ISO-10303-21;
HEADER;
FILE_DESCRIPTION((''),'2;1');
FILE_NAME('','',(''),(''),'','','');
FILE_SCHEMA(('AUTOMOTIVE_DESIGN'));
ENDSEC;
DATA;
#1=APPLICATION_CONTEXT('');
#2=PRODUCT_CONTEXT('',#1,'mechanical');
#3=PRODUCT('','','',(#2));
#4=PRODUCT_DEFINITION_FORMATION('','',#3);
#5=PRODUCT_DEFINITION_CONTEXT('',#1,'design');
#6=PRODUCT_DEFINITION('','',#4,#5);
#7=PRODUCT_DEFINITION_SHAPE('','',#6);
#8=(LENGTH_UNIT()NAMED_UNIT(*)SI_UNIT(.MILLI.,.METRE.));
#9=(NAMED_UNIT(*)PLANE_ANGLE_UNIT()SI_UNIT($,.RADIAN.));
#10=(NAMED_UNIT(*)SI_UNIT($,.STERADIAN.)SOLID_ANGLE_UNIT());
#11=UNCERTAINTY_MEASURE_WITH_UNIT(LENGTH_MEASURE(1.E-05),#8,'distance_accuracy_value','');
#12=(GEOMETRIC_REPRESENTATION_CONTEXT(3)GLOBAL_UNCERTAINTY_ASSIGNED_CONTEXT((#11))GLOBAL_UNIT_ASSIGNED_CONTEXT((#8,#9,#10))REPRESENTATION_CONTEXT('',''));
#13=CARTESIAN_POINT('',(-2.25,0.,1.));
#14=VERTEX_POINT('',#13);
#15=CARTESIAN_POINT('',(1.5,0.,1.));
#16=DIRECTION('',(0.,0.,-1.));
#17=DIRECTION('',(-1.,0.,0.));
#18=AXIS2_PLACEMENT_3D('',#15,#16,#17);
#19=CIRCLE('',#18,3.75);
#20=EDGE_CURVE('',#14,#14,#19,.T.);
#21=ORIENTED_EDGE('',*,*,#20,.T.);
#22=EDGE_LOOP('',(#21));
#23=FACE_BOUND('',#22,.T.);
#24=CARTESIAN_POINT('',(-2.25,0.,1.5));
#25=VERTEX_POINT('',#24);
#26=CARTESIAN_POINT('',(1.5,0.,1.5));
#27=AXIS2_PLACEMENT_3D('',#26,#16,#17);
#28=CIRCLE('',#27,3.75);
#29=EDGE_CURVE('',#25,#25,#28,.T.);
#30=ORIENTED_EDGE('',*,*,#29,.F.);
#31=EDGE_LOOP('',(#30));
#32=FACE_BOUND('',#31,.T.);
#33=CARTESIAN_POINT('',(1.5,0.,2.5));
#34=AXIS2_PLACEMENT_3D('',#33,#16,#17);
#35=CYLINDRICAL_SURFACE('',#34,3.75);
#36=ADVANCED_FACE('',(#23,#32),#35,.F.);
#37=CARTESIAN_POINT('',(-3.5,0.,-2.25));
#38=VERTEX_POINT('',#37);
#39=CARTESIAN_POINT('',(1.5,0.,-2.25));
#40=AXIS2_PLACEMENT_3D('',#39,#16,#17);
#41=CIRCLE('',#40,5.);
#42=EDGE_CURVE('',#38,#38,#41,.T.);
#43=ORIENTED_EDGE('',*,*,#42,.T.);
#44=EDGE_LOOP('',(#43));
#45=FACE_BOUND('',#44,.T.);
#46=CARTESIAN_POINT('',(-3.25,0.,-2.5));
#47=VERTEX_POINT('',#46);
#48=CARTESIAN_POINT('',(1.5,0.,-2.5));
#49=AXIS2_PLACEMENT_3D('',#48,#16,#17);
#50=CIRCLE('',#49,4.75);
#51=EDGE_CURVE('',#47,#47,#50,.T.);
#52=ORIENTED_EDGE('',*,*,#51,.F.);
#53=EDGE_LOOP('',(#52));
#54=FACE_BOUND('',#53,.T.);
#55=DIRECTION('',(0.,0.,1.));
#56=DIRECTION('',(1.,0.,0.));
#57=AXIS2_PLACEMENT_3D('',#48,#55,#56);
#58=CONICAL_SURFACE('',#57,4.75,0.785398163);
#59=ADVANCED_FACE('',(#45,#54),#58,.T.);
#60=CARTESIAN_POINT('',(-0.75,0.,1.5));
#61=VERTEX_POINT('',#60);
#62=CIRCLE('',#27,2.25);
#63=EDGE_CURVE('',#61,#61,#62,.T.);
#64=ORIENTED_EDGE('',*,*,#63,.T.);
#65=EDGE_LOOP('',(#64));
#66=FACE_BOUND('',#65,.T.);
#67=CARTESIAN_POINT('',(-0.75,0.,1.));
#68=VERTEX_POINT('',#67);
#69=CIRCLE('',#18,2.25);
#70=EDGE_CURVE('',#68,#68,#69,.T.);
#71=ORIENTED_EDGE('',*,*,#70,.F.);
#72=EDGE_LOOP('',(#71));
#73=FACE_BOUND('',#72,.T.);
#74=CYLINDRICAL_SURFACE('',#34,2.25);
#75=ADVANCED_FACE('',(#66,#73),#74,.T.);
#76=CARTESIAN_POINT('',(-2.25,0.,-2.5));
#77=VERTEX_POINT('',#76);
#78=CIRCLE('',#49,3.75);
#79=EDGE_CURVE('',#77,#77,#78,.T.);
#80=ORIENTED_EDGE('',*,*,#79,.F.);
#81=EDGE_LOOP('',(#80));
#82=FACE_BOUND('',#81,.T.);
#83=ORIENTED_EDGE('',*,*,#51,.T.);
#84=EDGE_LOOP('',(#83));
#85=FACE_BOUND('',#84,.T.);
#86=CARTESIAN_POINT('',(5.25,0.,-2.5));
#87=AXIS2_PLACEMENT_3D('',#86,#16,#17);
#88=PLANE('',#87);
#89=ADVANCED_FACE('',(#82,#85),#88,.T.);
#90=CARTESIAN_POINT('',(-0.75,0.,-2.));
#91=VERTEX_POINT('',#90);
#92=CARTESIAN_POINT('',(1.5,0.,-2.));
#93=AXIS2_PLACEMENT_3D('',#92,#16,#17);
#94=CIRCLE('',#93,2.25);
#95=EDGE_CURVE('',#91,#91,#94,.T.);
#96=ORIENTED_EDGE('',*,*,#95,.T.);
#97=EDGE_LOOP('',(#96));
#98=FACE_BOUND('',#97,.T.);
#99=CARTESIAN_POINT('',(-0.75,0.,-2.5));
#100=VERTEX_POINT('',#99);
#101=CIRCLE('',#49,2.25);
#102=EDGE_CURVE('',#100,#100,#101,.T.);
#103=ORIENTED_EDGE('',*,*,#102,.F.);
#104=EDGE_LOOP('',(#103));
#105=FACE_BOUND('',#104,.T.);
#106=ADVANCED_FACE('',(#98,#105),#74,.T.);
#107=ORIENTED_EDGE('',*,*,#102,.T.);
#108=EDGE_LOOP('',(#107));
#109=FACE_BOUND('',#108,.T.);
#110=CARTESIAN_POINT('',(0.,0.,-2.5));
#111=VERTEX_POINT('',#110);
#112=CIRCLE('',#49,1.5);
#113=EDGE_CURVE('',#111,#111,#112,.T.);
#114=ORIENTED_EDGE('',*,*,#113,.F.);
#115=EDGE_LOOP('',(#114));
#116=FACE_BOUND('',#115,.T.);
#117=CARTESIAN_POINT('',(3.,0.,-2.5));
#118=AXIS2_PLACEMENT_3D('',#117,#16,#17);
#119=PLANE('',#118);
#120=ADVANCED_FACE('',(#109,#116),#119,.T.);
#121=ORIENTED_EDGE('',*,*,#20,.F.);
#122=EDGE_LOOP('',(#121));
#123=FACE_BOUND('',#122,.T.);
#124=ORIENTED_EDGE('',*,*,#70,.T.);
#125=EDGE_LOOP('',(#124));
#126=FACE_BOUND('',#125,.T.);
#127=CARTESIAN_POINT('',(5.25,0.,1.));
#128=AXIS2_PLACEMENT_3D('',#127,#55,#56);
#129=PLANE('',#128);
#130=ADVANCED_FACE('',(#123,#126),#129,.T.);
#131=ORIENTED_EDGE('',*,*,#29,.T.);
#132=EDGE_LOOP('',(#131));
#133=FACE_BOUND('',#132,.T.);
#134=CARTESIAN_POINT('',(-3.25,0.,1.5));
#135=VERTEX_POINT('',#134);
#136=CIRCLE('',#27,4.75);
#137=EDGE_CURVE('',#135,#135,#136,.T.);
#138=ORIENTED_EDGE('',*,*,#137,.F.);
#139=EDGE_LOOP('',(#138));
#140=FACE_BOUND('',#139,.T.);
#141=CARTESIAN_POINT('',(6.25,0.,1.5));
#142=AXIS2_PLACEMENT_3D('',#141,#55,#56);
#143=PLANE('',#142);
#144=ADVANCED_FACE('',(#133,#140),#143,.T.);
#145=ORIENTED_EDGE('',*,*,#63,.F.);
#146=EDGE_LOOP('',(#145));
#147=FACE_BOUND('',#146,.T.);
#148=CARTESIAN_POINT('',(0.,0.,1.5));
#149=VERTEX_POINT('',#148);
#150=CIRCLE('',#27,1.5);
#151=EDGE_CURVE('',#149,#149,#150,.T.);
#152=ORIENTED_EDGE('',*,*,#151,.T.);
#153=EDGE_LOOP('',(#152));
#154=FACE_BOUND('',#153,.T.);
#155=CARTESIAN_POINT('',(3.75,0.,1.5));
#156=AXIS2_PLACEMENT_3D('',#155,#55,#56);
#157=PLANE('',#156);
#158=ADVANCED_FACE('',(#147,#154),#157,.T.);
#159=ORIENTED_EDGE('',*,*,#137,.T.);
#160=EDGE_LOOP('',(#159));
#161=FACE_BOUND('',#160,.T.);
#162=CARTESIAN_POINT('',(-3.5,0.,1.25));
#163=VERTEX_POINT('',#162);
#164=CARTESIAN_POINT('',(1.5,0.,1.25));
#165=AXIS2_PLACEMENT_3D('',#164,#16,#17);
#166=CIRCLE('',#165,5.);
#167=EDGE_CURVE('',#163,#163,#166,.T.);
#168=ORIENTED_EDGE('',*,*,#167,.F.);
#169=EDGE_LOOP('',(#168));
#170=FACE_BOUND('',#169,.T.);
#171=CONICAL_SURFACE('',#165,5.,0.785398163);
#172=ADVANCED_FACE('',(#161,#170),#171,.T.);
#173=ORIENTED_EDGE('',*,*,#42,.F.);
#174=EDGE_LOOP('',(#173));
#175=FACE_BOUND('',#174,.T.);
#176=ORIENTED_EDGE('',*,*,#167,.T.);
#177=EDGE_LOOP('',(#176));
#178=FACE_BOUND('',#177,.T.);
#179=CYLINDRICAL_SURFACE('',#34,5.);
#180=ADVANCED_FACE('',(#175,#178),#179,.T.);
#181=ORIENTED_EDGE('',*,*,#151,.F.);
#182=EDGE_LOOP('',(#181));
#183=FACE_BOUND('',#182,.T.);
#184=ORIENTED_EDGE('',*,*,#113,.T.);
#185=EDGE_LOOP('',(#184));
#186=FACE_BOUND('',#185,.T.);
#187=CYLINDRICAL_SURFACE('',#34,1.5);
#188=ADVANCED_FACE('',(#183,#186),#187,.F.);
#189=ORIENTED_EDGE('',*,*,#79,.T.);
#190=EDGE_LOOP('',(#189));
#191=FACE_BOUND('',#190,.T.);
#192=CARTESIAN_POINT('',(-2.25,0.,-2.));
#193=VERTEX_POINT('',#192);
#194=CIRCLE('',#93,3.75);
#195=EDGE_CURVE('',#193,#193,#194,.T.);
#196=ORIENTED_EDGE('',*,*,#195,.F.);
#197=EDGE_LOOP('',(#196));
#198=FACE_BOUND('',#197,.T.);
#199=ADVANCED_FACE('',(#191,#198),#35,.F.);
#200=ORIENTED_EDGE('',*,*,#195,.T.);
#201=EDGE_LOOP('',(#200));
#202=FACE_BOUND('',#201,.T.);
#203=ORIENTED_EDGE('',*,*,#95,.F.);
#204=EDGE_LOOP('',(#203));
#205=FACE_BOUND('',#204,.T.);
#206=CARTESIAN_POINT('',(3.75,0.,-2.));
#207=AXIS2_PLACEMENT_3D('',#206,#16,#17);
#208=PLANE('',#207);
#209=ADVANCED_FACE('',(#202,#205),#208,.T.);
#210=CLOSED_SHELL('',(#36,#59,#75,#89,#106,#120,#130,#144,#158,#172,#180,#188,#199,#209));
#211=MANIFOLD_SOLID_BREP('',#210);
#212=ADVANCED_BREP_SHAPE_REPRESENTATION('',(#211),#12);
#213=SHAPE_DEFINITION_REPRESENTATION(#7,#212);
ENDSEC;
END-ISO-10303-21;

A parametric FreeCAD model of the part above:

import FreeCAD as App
import Part
import Sketcher
from FreeCAD import Vector
Q = App.Units.Quantity

doc = App.newDocument("Part")
params = doc.addObject("Spreadsheet::Sheet", "Params")
for row, (alias, value) in enumerate([
    ("sketch1_width", "1 mm"),
    ("sketch1_height", "4 mm"),
    ("sketch1_width2", "1.5 mm"),
    ("sketch1_height2", "0.5 mm"),
    ("sketch1_height3", "3.5 mm"),
    ("revolution_angle", "360 deg"),
], start=1):
    params.set(f"A{row}", alias)
    params.set(f"B{row}", "=" + value)
    params.setAlias(f"B{row}", alias)

body = doc.addObject("PartDesign::Body", "Body")

sketch1 = body.newObject("Sketcher::SketchObject", "Sketch")
sketch1.AttachmentSupport = (doc.getObject("XZ_Plane"), [""])
sketch1.MapMode = "FlatFace"
sketch1.addGeometry([
    Part.LineSegment(Vector(6.5, 1.25, 0), Vector(6.25, 1.5, 0)),
    Part.LineSegment(Vector(6.25, 1.5, 0), Vector(5.25, 1.5, 0)),
    Part.LineSegment(Vector(5.25, 1.5, 0), Vector(5.25, 1, 0)),
    Part.LineSegment(Vector(5.25, 1, 0), Vector(3.75, 1, 0)),
    Part.LineSegment(Vector(3.75, 1, 0), Vector(3.75, 1.5, 0)),
    Part.LineSegment(Vector(3.75, 1.5, 0), Vector(3, 1.5, 0)),
    Part.LineSegment(Vector(3, 1.5, 0), Vector(3, -2.5, 0)),
    Part.LineSegment(Vector(3, -2.5, 0), Vector(3.75, -2.5, 0)),
    Part.LineSegment(Vector(3.75, -2.5, 0), Vector(3.75, -2, 0)),
    Part.LineSegment(Vector(3.75, -2, 0), Vector(5.25, -2, 0)),
    Part.LineSegment(Vector(5.25, -2, 0), Vector(5.25, -2.5, 0)),
    Part.LineSegment(Vector(5.25, -2.5, 0), Vector(6.25, -2.5, 0)),
    Part.LineSegment(Vector(6.25, -2.5, 0), Vector(6.5, -2.25, 0)),
    Part.LineSegment(Vector(6.5, -2.25, 0), Vector(6.5, 1.25, 0)),
], False)
sketch1.addGeometry(Part.LineSegment(Vector(1.5, 1.5, 0), Vector(1.5, -2.5, 0)), True)
sketch1.addConstraint([
    Sketcher.Constraint("Coincident", 0, 2, 1, 1),
    Sketcher.Constraint("Coincident", 1, 2, 2, 1),
    Sketcher.Constraint("Coincident", 2, 2, 3, 1),
    Sketcher.Constraint("Coincident", 3, 2, 4, 1),
    Sketcher.Constraint("Coincident", 4, 2, 5, 1),
    Sketcher.Constraint("Coincident", 5, 2, 6, 1),
    Sketcher.Constraint("Coincident", 6, 2, 7, 1),
    Sketcher.Constraint("Coincident", 7, 2, 8, 1),
    Sketcher.Constraint("Coincident", 8, 2, 9, 1),
    Sketcher.Constraint("Coincident", 9, 2, 10, 1),
    Sketcher.Constraint("Coincident", 10, 2, 11, 1),
    Sketcher.Constraint("Coincident", 11, 2, 12, 1),
    Sketcher.Constraint("Coincident", 12, 2, 13, 1),
    Sketcher.Constraint("Coincident", 13, 2, 0, 1),
    Sketcher.Constraint("Horizontal", 1),
    Sketcher.Constraint("Vertical", 2),
    Sketcher.Constraint("Horizontal", 3),
    Sketcher.Constraint("Vertical", 4),
    Sketcher.Constraint("Horizontal", 5),
    Sketcher.Constraint("Vertical", 6),
    Sketcher.Constraint("Horizontal", 7),
    Sketcher.Constraint("Vertical", 8),
    Sketcher.Constraint("Horizontal", 9),
    Sketcher.Constraint("Vertical", 10),
    Sketcher.Constraint("Horizontal", 11),
    Sketcher.Constraint("Vertical", 13),
    Sketcher.Constraint("Vertical", 14),
    Sketcher.Constraint("Perpendicular", 0, 12),
    Sketcher.Constraint("Horizontal", 1, 2, 4, 2),
    Sketcher.Constraint("Horizontal", 7, 2, 10, 2),
    Sketcher.Constraint("Horizontal", 5, 2, 14, 1),
    Sketcher.Constraint("Horizontal", 11, 2, 14, 2),
    Sketcher.Constraint("Vertical", 4, 2, 7, 2),
    Sketcher.Constraint("Vertical", 2, 2, 9, 2),
    Sketcher.Constraint("Vertical", 0, 2, 11, 2),
    Sketcher.Constraint("Equal", 4, 8),
    Sketcher.Constraint("Equal", 0, 12),
    Sketcher.Constraint("DistanceX", 1, 2, 1, 1, Q("1 mm")),
    Sketcher.Constraint("DistanceY", 6, 2, 6, 1, Q("4 mm")),
    Sketcher.Constraint("DistanceX", 3, 2, 3, 1, Q("1.5 mm")),
    Sketcher.Constraint("DistanceY", 2, 2, 2, 1, Q("0.5 mm")),
    Sketcher.Constraint("DistanceY", 13, 1, 13, 2, Q("3.5 mm")),
    Sketcher.Constraint("DistanceY", -1, 1, 2, 2, Q("1 mm")),
    Sketcher.Constraint("DistanceX", -1, 1, 5, 2, Q("3 mm")),
    Sketcher.Constraint("DistanceX", 5, 2, 5, 1, Q("0.75 mm")),
    Sketcher.Constraint("DistanceX", -1, 1, 14, 1, Q("1.5 mm")),
])
sketch1.setExpression("Constraints[37]", "Params.sketch1_width")
sketch1.setExpression("Constraints[38]", "Params.sketch1_height")
sketch1.setExpression("Constraints[39]", "Params.sketch1_width2")
sketch1.setExpression("Constraints[40]", "Params.sketch1_height2")
sketch1.setExpression("Constraints[41]", "Params.sketch1_height3")
revolution = body.newObject("PartDesign::Revolution", "Revolution")
revolution.Profile = sketch1
revolution.ReferenceAxis = (sketch1, ["Axis0"])
revolution.setExpression("Angle", "Params.revolution_angle")

doc.recompute()
